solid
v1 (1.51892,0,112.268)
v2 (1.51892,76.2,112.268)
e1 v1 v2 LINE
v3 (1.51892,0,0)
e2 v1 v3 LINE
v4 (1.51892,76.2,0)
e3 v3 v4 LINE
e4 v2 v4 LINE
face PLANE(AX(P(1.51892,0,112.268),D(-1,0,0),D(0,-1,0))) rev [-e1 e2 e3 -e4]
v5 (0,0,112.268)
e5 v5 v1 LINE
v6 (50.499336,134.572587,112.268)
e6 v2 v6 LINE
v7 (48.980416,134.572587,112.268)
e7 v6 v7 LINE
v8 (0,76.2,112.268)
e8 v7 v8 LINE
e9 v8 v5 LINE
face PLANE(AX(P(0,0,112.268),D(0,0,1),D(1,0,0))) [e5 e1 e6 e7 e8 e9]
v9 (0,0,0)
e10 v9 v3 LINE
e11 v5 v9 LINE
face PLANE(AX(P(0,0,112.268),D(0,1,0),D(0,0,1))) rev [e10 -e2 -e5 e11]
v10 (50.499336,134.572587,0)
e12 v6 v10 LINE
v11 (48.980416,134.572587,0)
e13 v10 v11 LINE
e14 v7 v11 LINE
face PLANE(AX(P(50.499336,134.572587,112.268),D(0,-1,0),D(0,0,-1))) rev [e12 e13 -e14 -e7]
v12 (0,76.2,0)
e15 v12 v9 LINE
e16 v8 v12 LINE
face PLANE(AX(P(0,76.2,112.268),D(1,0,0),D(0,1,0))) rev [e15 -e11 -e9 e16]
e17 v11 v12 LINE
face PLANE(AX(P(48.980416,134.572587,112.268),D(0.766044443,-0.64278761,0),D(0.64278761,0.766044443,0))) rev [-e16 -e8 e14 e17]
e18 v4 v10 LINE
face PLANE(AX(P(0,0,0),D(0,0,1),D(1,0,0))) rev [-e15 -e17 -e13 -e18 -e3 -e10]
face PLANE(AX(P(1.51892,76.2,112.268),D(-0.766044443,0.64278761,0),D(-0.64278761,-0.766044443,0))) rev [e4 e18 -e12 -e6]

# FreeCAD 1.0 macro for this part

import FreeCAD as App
import Part
import Sketcher
Q = App.Units.Quantity

doc = App.newDocument("Part")
params = doc.addObject("Spreadsheet::Sheet", "Params")
for row, (alias, value) in enumerate([
    ("sketch1_height", "3 in"),
    ("sketch1_length", "3 in"),
    ("pad1_length", "4.42 in"),
], start=1):
    params.set(f"A{row}", alias)
    params.set(f"B{row}", "=" + value)
    params.setAlias(f"B{row}", alias)

body = doc.addObject("PartDesign::Body", "Body")

# Sketch on XY plane
sketch1 = doc.addObject("Sketcher::SketchObject", "Sketch")
body.addObject(sketch1)
sketch1.AttachmentSupport = (doc.XY_Plane, [""])
sketch1.MapMode = "FlatFace"
sketch1.addGeometry(Part.LineSegment(App.Vector(0, 0, 0), App.Vector(1.5, 0, 0)), False)
sketch1.addGeometry(Part.LineSegment(App.Vector(1.5, 0, 0), App.Vector(1.5, 76.2, 0)), False)
sketch1.addGeometry(Part.LineSegment(App.Vector(1.5, 76.2, 0), App.Vector(50.5, 134.6, 0)), False)
sketch1.addGeometry(Part.LineSegment(App.Vector(50.5, 134.6, 0), App.Vector(49, 134.6, 0)), False)
sketch1.addGeometry(Part.LineSegment(App.Vector(49, 134.6, 0), App.Vector(0, 76.2, 0)), False)
sketch1.addGeometry(Part.LineSegment(App.Vector(0, 76.2, 0), App.Vector(0, 0, 0)), False)
sketch1.addConstraint(Sketcher.Constraint("Coincident", 0, 2, 1, 1))
sketch1.addConstraint(Sketcher.Constraint("Coincident", 1, 2, 2, 1))
sketch1.addConstraint(Sketcher.Constraint("Coincident", 2, 2, 3, 1))
sketch1.addConstraint(Sketcher.Constraint("Coincident", 3, 2, 4, 1))
sketch1.addConstraint(Sketcher.Constraint("Coincident", 4, 2, 5, 1))
sketch1.addConstraint(Sketcher.Constraint("Coincident", 5, 2, 0, 1))
sketch1.addConstraint(Sketcher.Constraint("Horizontal", 0))
sketch1.addConstraint(Sketcher.Constraint("Vertical", 1))
sketch1.addConstraint(Sketcher.Constraint("Horizontal", 3))
sketch1.addConstraint(Sketcher.Constraint("Vertical", 5))
sketch1.addConstraint(Sketcher.Constraint("Coincident", 5, 2, -1, 1))
sketch1.addConstraint(Sketcher.Constraint("Parallel", 2, 4))
sketch1.addConstraint(Sketcher.Constraint("Horizontal", 1, 2, 4, 2))
sketch1.addConstraint(Sketcher.Constraint("DistanceY", 1, 1, 1, 2, Q("3 in")))
sketch1.addConstraint(Sketcher.Constraint("Distance", 2, Q("3 in")))
sketch1.addConstraint(Sketcher.Constraint("Angle", 2, Q("50 deg")))
sketch1.addConstraint(Sketcher.Constraint("DistanceX", 0, 1, 0, 2, Q("0.0598 in")))
sketch1.setExpression("Constraints[13]", "Params.sketch1_height")
sketch1.setExpression("Constraints[14]", "Params.sketch1_length")
pad1 = doc.addObject("PartDesign::Pad", "Pad")
body.addObject(pad1)
pad1.Profile = sketch1
pad1.setExpression("Length", "Params.pad1_length")

doc.recompute()
